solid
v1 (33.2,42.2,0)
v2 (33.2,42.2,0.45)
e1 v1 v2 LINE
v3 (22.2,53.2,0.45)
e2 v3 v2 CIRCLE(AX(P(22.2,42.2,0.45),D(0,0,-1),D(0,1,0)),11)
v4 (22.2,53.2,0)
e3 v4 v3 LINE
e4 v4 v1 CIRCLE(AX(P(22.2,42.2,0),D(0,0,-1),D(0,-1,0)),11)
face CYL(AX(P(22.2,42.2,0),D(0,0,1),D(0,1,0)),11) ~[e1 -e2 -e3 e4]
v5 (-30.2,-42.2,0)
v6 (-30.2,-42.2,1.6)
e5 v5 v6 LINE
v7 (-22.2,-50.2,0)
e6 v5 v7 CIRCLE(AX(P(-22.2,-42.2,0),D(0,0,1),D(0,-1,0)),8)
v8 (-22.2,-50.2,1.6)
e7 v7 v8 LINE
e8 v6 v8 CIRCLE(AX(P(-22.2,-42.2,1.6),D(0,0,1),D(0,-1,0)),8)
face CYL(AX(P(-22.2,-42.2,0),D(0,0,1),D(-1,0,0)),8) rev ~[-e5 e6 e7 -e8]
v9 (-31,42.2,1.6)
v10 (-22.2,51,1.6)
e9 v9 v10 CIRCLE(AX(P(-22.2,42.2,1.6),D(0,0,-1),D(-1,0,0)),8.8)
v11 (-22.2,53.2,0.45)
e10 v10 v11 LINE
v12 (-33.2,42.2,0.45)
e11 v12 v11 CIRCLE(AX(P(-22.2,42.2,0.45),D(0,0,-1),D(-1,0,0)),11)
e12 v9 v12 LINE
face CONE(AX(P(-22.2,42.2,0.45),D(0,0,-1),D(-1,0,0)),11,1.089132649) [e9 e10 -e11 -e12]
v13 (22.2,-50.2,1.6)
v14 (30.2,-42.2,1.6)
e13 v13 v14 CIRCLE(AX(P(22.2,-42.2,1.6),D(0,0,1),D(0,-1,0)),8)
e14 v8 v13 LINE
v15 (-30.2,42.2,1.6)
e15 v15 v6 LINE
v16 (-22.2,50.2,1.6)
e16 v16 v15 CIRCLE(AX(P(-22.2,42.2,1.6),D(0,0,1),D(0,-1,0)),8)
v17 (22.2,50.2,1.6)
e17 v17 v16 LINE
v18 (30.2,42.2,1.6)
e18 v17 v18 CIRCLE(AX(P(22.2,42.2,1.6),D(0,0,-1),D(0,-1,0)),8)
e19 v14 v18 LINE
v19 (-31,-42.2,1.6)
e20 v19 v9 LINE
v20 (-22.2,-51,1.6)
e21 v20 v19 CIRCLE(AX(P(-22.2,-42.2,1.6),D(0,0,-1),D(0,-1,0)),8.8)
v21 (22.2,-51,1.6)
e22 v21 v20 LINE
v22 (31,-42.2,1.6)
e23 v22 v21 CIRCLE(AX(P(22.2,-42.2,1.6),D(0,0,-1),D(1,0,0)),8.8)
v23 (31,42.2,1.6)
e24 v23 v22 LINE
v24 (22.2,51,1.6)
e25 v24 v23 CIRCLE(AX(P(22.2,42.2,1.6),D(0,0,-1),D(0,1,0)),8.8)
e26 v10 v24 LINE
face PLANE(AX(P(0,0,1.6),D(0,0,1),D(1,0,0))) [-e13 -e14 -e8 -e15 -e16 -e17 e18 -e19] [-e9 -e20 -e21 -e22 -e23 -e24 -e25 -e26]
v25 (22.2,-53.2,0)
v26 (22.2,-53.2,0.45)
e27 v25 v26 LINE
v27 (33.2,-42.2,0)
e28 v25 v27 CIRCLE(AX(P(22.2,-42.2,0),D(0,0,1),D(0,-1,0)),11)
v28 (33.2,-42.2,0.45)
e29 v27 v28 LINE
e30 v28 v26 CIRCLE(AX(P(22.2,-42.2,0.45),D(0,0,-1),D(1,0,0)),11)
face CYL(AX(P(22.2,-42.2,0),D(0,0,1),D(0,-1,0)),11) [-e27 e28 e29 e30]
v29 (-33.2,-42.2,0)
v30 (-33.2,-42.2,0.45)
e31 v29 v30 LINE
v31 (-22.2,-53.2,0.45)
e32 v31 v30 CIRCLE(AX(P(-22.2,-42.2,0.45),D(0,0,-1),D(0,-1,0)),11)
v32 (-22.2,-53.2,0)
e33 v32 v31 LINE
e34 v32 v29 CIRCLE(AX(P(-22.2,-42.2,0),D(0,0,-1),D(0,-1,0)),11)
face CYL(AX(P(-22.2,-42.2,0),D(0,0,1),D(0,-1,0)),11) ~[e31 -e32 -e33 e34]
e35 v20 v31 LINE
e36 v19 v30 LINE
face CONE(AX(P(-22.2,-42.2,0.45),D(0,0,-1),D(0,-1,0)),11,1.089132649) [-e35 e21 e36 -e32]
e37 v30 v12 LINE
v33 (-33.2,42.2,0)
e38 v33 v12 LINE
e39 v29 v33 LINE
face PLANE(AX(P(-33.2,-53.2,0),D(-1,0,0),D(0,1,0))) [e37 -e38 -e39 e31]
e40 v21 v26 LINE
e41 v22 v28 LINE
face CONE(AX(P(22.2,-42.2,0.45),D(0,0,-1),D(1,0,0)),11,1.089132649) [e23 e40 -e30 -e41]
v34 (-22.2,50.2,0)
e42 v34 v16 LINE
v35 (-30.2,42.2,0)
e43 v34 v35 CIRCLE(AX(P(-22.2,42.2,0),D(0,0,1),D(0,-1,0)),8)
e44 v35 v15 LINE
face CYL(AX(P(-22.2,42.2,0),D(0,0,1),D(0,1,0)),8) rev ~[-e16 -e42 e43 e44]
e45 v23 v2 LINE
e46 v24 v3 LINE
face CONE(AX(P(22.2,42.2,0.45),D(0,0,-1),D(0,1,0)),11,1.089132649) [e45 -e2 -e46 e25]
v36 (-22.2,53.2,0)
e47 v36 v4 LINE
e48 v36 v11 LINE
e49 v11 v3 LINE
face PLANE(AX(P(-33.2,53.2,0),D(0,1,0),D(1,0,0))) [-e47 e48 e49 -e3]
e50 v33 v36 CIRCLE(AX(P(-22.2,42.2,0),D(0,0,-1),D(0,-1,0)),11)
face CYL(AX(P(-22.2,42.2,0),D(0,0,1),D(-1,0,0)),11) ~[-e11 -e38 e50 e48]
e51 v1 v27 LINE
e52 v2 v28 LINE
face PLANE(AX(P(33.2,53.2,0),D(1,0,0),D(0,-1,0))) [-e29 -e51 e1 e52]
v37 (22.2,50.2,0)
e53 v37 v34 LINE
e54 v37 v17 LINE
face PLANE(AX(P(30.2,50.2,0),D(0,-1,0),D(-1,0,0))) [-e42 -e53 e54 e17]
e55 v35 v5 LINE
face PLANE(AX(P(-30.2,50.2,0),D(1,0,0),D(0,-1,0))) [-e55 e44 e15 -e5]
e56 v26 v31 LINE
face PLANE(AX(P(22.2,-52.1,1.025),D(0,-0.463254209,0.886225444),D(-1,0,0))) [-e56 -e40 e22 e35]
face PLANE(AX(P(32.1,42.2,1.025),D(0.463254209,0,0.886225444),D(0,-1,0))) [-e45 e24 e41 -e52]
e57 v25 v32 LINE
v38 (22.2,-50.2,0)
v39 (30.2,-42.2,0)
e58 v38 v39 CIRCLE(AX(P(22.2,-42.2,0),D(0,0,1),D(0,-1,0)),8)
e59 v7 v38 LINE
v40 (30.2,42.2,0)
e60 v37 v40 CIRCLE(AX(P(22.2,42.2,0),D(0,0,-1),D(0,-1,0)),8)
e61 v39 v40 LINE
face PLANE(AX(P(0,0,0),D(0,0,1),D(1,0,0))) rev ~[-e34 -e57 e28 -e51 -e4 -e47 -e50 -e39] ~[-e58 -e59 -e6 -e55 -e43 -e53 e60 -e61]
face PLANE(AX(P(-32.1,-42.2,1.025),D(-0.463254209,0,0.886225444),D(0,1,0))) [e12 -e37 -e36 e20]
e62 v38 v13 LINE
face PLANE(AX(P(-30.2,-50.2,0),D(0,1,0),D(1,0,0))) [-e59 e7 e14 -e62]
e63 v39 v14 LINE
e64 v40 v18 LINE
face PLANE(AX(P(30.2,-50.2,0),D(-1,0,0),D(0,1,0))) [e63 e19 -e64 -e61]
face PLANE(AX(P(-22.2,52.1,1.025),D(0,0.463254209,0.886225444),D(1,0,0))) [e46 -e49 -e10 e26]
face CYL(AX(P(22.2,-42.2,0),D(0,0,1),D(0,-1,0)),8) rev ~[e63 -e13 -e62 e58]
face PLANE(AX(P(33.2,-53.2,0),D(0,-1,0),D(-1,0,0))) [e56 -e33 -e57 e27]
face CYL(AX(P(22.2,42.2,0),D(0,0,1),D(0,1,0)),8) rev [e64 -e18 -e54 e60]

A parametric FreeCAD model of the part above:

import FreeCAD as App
import Part
import Sketcher
from FreeCAD import Vector


def edges_at(feature, points):
    """Names of the edges that pass closest to the given points."""
    edges = feature.Shape.Edges
    near = lambda p: min(range(len(edges)), key=lambda i: edges[i].distToShape(Part.Vertex(*p))[0])
    return sorted({f"Edge{near(p) + 1}" for p in points})

doc = App.newDocument("Part")
body = doc.addObject("PartDesign::Body", "Body")

sketch1 = body.newObject("Sketcher::SketchObject", "Sketch")
sketch1.AttachmentSupport = (doc.getObject("XY_Plane"), [""])
sketch1.MapMode = "FlatFace"
sketch1.addGeometry(Part.LineSegment(Vector(-33.2, -53.2, 0), Vector(33.2, -53.2, 0)), False)
sketch1.addGeometry(Part.LineSegment(Vector(33.2, -53.2, 0), Vector(33.2, 53.2, 0)), False)
sketch1.addGeometry(Part.LineSegment(Vector(33.2, 53.2, 0), Vector(-33.2, 53.2, 0)), False)
sketch1.addGeometry(Part.LineSegment(Vector(-33.2, 53.2, 0), Vector(-33.2, -53.2, 0)), False)
sketch1.addGeometry(Part.LineSegment(Vector(-30.2, 50.2, 0), Vector(30.2, 50.2, 0)), False)
sketch1.addGeometry(Part.LineSegment(Vector(30.2, 50.2, 0), Vector(30.2, -50.2, 0)), False)
sketch1.addGeometry(Part.LineSegment(Vector(30.2, -50.2, 0), Vector(-30.2, -50.2, 0)), False)
sketch1.addGeometry(Part.LineSegment(Vector(-30.2, -50.2, 0), Vector(-30.2, 50.2, 0)), False)
sketch1.addConstraint(Sketcher.Constraint("Coincident", 0, 2, 1, 1))
sketch1.addConstraint(Sketcher.Constraint("Coincident", 1, 2, 2, 1))
sketch1.addConstraint(Sketcher.Constraint("Coincident", 2, 2, 3, 1))
sketch1.addConstraint(Sketcher.Constraint("Coincident", 3, 2, 0, 1))
sketch1.addConstraint(Sketcher.Constraint("Coincident", 4, 2, 5, 1))
sketch1.addConstraint(Sketcher.Constraint("Coincident", 5, 2, 6, 1))
sketch1.addConstraint(Sketcher.Constraint("Coincident", 6, 2, 7, 1))
sketch1.addConstraint(Sketcher.Constraint("Coincident", 7, 2, 4, 1))
sketch1.addConstraint(Sketcher.Constraint("Horizontal", 0))
sketch1.addConstraint(Sketcher.Constraint("Vertical", 1))
sketch1.addConstraint(Sketcher.Constraint("Horizontal", 2))
sketch1.addConstraint(Sketcher.Constraint("Vertical", 3))
sketch1.addConstraint(Sketcher.Constraint("Horizontal", 4))
sketch1.addConstraint(Sketcher.Constraint("Vertical", 5))
sketch1.addConstraint(Sketcher.Constraint("Horizontal", 6))
sketch1.addConstraint(Sketcher.Constraint("Vertical", 7))
sketch1.addConstraint(Sketcher.Constraint("Symmetric", 0, 2, 2, 2, -1, 1))
sketch1.addConstraint(Sketcher.Constraint("Symmetric", 4, 2, 6, 2, -1, 1))
sketch1.addConstraint(Sketcher.Constraint("DistanceX", 0, 1, 0, 2, 66.4))
sketch1.addConstraint(Sketcher.Constraint("DistanceY", 1, 1, 1, 2, 106.4))
sketch1.addConstraint(Sketcher.Constraint("DistanceX", 4, 2, 1, 2, 3.0))
sketch1.addConstraint(Sketcher.Constraint("DistanceY", 4, 2, 1, 2, 3.0))
pad1 = body.newObject("PartDesign::Pad", "Pad")
pad1.Profile = sketch1
pad1.Length = 1.6
doc.recompute()

fillet = body.newObject("PartDesign::Fillet", "Fillet")
fillet.Base = (pad1, edges_at(pad1, [
    (-33.2, 53.2, 0.8),
    (33.2, 53.2, 0.8),
    (33.2, -53.2, 0.8),
    (-33.2, -53.2, 0.8),
]))
fillet.Radius = 11
doc.recompute()

fillet2 = body.newObject("PartDesign::Fillet", "Fillet001")
fillet2.Base = (fillet, edges_at(fillet, [
    (30.2, -50.2, 0.8),
    (-30.2, -50.2, 0.8),
    (-30.2, 50.2, 0.8),
    (30.2, 50.2, 0.8),
]))
fillet2.Radius = 8
doc.recompute()

chamfer = body.newObject("PartDesign::Chamfer", "Chamfer")
chamfer.Base = (fillet2, edges_at(fillet2, [
    (-33.2, 0, 1.6),
    (-29.978, -49.978, 1.6),
    (0, -53.2, 1.6),
    (29.978, -49.978, 1.6),
    (33.2, 0, 1.6),
    (29.978, 49.978, 1.6),
    (0, 53.2, 1.6),
    (-29.978, 49.978, 1.6),
]))
chamfer.ChamferType = "Two distances"
chamfer.Size = 2.2
chamfer.Size2 = 1.15
chamfer.FlipDirection = True

doc.recompute()
